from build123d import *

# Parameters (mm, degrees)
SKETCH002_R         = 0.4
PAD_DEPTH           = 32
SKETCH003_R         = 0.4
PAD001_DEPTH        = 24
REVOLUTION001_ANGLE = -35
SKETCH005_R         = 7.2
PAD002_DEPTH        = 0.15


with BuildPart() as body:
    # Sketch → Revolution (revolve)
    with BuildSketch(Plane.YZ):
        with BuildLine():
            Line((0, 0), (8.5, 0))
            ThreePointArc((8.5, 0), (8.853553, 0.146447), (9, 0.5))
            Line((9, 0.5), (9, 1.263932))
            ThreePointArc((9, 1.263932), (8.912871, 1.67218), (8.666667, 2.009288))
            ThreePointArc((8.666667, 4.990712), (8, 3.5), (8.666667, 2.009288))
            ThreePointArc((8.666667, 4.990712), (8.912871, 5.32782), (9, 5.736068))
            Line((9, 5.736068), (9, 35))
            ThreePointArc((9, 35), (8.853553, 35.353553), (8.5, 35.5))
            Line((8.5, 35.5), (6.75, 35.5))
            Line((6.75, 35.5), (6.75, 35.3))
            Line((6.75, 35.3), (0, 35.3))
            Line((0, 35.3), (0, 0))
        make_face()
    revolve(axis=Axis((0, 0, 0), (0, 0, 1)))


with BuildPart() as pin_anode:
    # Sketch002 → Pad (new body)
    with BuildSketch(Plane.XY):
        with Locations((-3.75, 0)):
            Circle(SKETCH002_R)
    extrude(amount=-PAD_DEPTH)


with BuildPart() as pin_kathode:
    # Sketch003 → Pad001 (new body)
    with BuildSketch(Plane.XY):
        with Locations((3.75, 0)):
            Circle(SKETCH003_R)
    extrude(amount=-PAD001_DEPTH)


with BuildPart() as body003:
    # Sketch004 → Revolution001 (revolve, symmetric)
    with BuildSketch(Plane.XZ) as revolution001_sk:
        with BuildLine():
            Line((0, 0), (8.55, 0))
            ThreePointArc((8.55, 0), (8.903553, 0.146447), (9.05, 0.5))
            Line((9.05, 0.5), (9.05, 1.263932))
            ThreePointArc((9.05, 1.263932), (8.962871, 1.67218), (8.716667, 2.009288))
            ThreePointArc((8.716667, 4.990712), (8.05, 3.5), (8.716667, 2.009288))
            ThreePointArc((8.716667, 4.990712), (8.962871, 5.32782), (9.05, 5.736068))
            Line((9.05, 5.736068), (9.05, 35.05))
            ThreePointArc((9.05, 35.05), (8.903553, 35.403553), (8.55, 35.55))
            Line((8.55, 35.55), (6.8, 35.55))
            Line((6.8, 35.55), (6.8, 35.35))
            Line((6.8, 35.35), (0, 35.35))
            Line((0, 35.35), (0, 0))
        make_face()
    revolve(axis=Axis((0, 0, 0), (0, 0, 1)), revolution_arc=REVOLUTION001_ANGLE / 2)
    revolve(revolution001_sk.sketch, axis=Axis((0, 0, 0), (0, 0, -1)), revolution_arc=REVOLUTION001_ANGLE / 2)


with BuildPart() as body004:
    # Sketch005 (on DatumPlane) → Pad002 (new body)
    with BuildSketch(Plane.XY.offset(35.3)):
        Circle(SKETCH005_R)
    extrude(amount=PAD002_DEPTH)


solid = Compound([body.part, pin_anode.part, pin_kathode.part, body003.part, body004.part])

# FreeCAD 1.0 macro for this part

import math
import FreeCAD as App
import Part
import Sketcher

doc = App.newDocument("Part")
body = doc.addObject("PartDesign::Body", "Body")

sketch1 = body.newObject("Sketcher::SketchObject", "Sketch")
sketch1.AttachmentSupport = (doc.getObject("YZ_Plane"), [""])
sketch1.MapMode = "FlatFace"
sketch1.addGeometry(Part.LineSegment(App.Vector(0, 0, 0), App.Vector(8.5, 0, 0)), False)
sketch1.addGeometry(Part.ArcOfCircle(Part.Circle(App.Vector(8.5, 0.5, 0), App.Vector(0, 0, 1), 0.5), math.radians(-90), math.radians(0)), False)
sketch1.addGeometry(Part.LineSegment(App.Vector(9, 0.5, 0), App.Vector(9, 1.26, 0)), False)
sketch1.addGeometry(Part.ArcOfCircle(Part.Circle(App.Vector(8, 1.26, 0), App.Vector(0, 0, 1), 1), math.radians(0), math.radians(48)), False)
sketch1.addGeometry(Part.ArcOfCircle(Part.Circle(App.Vector(10, 3.5, 0), App.Vector(0, 0, 1), 2), math.radians(132), math.radians(228)), False)
sketch1.addGeometry(Part.ArcOfCircle(Part.Circle(App.Vector(8, 5.74, 0), App.Vector(0, 0, 1), 1), math.radians(-48), math.radians(0)), False)
sketch1.addGeometry(Part.LineSegment(App.Vector(9, 5.74, 0), App.Vector(9, 35, 0)), False)
sketch1.addGeometry(Part.ArcOfCircle(Part.Circle(App.Vector(8.5, 35, 0), App.Vector(0, 0, 1), 0.5), math.radians(0), math.radians(90)), False)
sketch1.addGeometry(Part.LineSegment(App.Vector(8.5, 35.5, 0), App.Vector(6.75, 35.5, 0)), False)
sketch1.addGeometry(Part.LineSegment(App.Vector(6.75, 35.5, 0), App.Vector(6.75, 35.3, 0)), False)
sketch1.addGeometry(Part.LineSegment(App.Vector(6.75, 35.3, 0), App.Vector(0, 35.3, 0)), False)
sketch1.addGeometry(Part.LineSegment(App.Vector(0, 35.3, 0), App.Vector(0, 0, 0)), False)
sketch1.addConstraint(Sketcher.Constraint("Coincident", 0, 2, 1, 1))
sketch1.addConstraint(Sketcher.Constraint("Coincident", 1, 2, 2, 1))
sketch1.addConstraint(Sketcher.Constraint("Tangent", 2, 2, 3, 1))
sketch1.addConstraint(Sketcher.Constraint("Tangent", 3, 2, 4, 2))
sketch1.addConstraint(Sketcher.Constraint("Tangent", 4, 1, 5, 1))
sketch1.addConstraint(Sketcher.Constraint("Tangent", 5, 2, 6, 1))
sketch1.addConstraint(Sketcher.Constraint("Coincident", 6, 2, 7, 1))
sketch1.addConstraint(Sketcher.Constraint("Coincident", 7, 2, 8, 1))
sketch1.addConstraint(Sketcher.Constraint("Coincident", 8, 2, 9, 1))
sketch1.addConstraint(Sketcher.Constraint("Coincident", 9, 2, 10, 1))
sketch1.addConstraint(Sketcher.Constraint("Coincident", 10, 2, 11, 1))
sketch1.addConstraint(Sketcher.Constraint("Coincident", 11, 2, 0, 1))
sketch1.addConstraint(Sketcher.Constraint("Horizontal", 0))
sketch1.addConstraint(Sketcher.Constraint("Vertical", 2))
sketch1.addConstraint(Sketcher.Constraint("Vertical", 6))
sketch1.addConstraint(Sketcher.Constraint("Horizontal", 8))
sketch1.addConstraint(Sketcher.Constraint("Vertical", 9))
sketch1.addConstraint(Sketcher.Constraint("Horizontal", 10))
sketch1.addConstraint(Sketcher.Constraint("Vertical", 11))
sketch1.addConstraint(Sketcher.Constraint("Coincident", 11, 2, -1, 1))
sketch1.addConstraint(Sketcher.Constraint("Equal", 3, 5))
sketch1.addConstraint(Sketcher.Constraint("Equal", 1, 7))
sketch1.addConstraint(Sketcher.Constraint("Horizontal", 7, 3, 6, 2))
sketch1.addConstraint(Sketcher.Constraint("Vertical", 3, 3, 5, 3))
sketch1.addConstraint(Sketcher.Constraint("Vertical", 7, 3, 0, 2))
sketch1.addConstraint(Sketcher.Constraint("Vertical", 0, 2, 7, 2))
sketch1.addConstraint(Sketcher.Constraint("Radius", 3, 1.000002))
sketch1.addConstraint(Sketcher.Constraint("Radius", 4, 1.999999))
sketch1.addConstraint(Sketcher.Constraint("Radius", 1, 0.500001))
sketch1.addConstraint(Sketcher.Constraint("DistanceX", 0, 1, 0, 2, 8.5))
sketch1.addConstraint(Sketcher.Constraint("DistanceY", 9, 2, 9, 1, 0.2))
sketch1.addConstraint(Sketcher.Constraint("DistanceY", 11, 2, 11, 1, 35.3))
sketch1.addConstraint(Sketcher.Constraint("DistanceX", -1, 1, 4, 3, 9.999999))
sketch1.addConstraint(Sketcher.Constraint("DistanceY", 1, 3, 4, 3, 2.999999))
sketch1.addConstraint(Sketcher.Constraint("DistanceY", 1, 2, 4, 3, 3.0))
sketch1.addConstraint(Sketcher.Constraint("DistanceX", 8, 2, 8, 1, 1.75))
revolution = body.newObject("PartDesign::Revolution", "Revolution")
revolution.Profile = sketch1
revolution.ReferenceAxis = (sketch1, ["V_Axis"])
revolution.Angle = 360
body2 = doc.addObject("PartDesign::Body", "Body001")

sketch2 = body2.newObject("Sketcher::SketchObject", "Sketch001")
sketch2.AttachmentSupport = (doc.getObject("XY_Plane001"), [""])
sketch2.MapMode = "FlatFace"
sketch2.addGeometry(Part.Circle(App.Vector(-3.75, 0, 0), App.Vector(0, 0, 1), 0.4), False)
sketch2.addConstraint(Sketcher.Constraint("PointOnObject", 0, 3, -1))
sketch2.addConstraint(Sketcher.Constraint("Diameter", 0, 0.8))
sketch2.addConstraint(Sketcher.Constraint("DistanceX", 0, 3, -1, 1, 3.75))
pad1 = body2.newObject("PartDesign::Pad", "Pad")
pad1.Profile = sketch2
pad1.Length = 32
pad1.Reversed = True
body3 = doc.addObject("PartDesign::Body", "Body002")

sketch3 = body3.newObject("Sketcher::SketchObject", "Sketch002")
sketch3.AttachmentSupport = (doc.getObject("XY_Plane002"), [""])
sketch3.MapMode = "FlatFace"
sketch3.addGeometry(Part.Circle(App.Vector(3.75, 0, 0), App.Vector(0, 0, 1), 0.4), False)
sketch3.addConstraint(Sketcher.Constraint("PointOnObject", 0, 3, -1))
sketch3.addConstraint(Sketcher.Constraint("Diameter", 0, 0.8))
sketch3.addConstraint(Sketcher.Constraint("DistanceX", -1, 1, 0, 3, 3.75))
pad2 = body3.newObject("PartDesign::Pad", "Pad001")
pad2.Profile = sketch3
pad2.Length = 24
pad2.Reversed = True
body4 = doc.addObject("PartDesign::Body", "Body003")

sketch4 = body4.newObject("Sketcher::SketchObject", "Sketch003")
sketch4.AttachmentSupport = (doc.getObject("XZ_Plane003"), [""])
sketch4.MapMode = "FlatFace"
sketch4.addGeometry(Part.LineSegment(App.Vector(0, 0, 0), App.Vector(8.55, 0, 0)), False)
sketch4.addGeometry(Part.ArcOfCircle(Part.Circle(App.Vector(8.55, 0.5, 0), App.Vector(0, 0, 1), 0.5), math.radians(-90), math.radians(0)), False)
sketch4.addGeometry(Part.LineSegment(App.Vector(9.05, 0.5, 0), App.Vector(9.05, 1.26, 0)), False)
sketch4.addGeometry(Part.ArcOfCircle(Part.Circle(App.Vector(8.05, 1.26, 0), App.Vector(0, 0, 1), 1), math.radians(0), math.radians(48)), False)
sketch4.addGeometry(Part.ArcOfCircle(Part.Circle(App.Vector(10.05, 3.5, 0), App.Vector(0, 0, 1), 2), math.radians(132), math.radians(228)), False)
sketch4.addGeometry(Part.ArcOfCircle(Part.Circle(App.Vector(8.05, 5.74, 0), App.Vector(0, 0, 1), 1), math.radians(-48), math.radians(0)), False)
sketch4.addGeometry(Part.LineSegment(App.Vector(9.05, 5.74, 0), App.Vector(9.05, 35.05, 0)), False)
sketch4.addGeometry(Part.ArcOfCircle(Part.Circle(App.Vector(8.55, 35.05, 0), App.Vector(0, 0, 1), 0.5), math.radians(0), math.radians(90)), False)
sketch4.addGeometry(Part.LineSegment(App.Vector(8.55, 35.55, 0), App.Vector(6.8, 35.55, 0)), False)
sketch4.addGeometry(Part.LineSegment(App.Vector(6.8, 35.55, 0), App.Vector(6.8, 35.35, 0)), False)
sketch4.addGeometry(Part.LineSegment(App.Vector(6.8, 35.35, 0), App.Vector(0, 35.35, 0)), False)
sketch4.addGeometry(Part.LineSegment(App.Vector(0, 35.35, 0), App.Vector(0, 0, 0)), False)
sketch4.addConstraint(Sketcher.Constraint("Coincident", 0, 2, 1, 1))
sketch4.addConstraint(Sketcher.Constraint("Coincident", 1, 2, 2, 1))
sketch4.addConstraint(Sketcher.Constraint("Tangent", 2, 2, 3, 1))
sketch4.addConstraint(Sketcher.Constraint("Tangent", 3, 2, 4, 2))
sketch4.addConstraint(Sketcher.Constraint("Tangent", 4, 1, 5, 1))
sketch4.addConstraint(Sketcher.Constraint("Tangent", 5, 2, 6, 1))
sketch4.addConstraint(Sketcher.Constraint("Coincident", 6, 2, 7, 1))
sketch4.addConstraint(Sketcher.Constraint("Coincident", 7, 2, 8, 1))
sketch4.addConstraint(Sketcher.Constraint("Coincident", 8, 2, 9, 1))
sketch4.addConstraint(Sketcher.Constraint("Coincident", 9, 2, 10, 1))
sketch4.addConstraint(Sketcher.Constraint("Coincident", 10, 2, 11, 1))
sketch4.addConstraint(Sketcher.Constraint("Coincident", 11, 2, 0, 1))
sketch4.addConstraint(Sketcher.Constraint("Horizontal", 0))
sketch4.addConstraint(Sketcher.Constraint("Vertical", 2))
sketch4.addConstraint(Sketcher.Constraint("Vertical", 6))
sketch4.addConstraint(Sketcher.Constraint("Horizontal", 8))
sketch4.addConstraint(Sketcher.Constraint("Vertical", 9))
sketch4.addConstraint(Sketcher.Constraint("Horizontal", 10))
sketch4.addConstraint(Sketcher.Constraint("Vertical", 11))
sketch4.addConstraint(Sketcher.Constraint("Coincident", 11, 2, -1, 1))
sketch4.addConstraint(Sketcher.Constraint("Equal", 3, 5))
sketch4.addConstraint(Sketcher.Constraint("Equal", 1, 7))
sketch4.addConstraint(Sketcher.Constraint("Horizontal", 7, 3, 6, 2))
sketch4.addConstraint(Sketcher.Constraint("Vertical", 3, 3, 5, 3))
sketch4.addConstraint(Sketcher.Constraint("Vertical", 7, 3, 0, 2))
sketch4.addConstraint(Sketcher.Constraint("Vertical", 0, 2, 7, 2))
sketch4.addConstraint(Sketcher.Constraint("Radius", 3, 1.000002))
sketch4.addConstraint(Sketcher.Constraint("Radius", 4, 1.999999))
sketch4.addConstraint(Sketcher.Constraint("Radius", 1, 0.500001))
sketch4.addConstraint(Sketcher.Constraint("DistanceX", 10, 2, 10, 1, 6.8))
sketch4.addConstraint(Sketcher.Constraint("DistanceY", 9, 2, 9, 1, 0.2))
sketch4.addConstraint(Sketcher.Constraint("DistanceX", 3, 3, 4, 3, 2.000001))
sketch4.addConstraint(Sketcher.Constraint("DistanceY", 1, 3, 4, 3, 2.999999))
sketch4.addConstraint(Sketcher.Constraint("DistanceY", 1, 2, 4, 3, 3.0))
sketch4.addConstraint(Sketcher.Constraint("DistanceX", 0, 1, 0, 2, 8.55))
sketch4.addConstraint(Sketcher.Constraint("DistanceY", 11, 2, 11, 1, 35.35))
revolution2 = body4.newObject("PartDesign::Revolution", "Revolution001")
revolution2.Profile = sketch4
revolution2.ReferenceAxis = (sketch4, ["V_Axis"])
revolution2.Angle = 17.5
revolution2.Reversed = True

sketch5 = body4.newObject("Sketcher::SketchObject", "Sketch004")
sketch5.AttachmentSupport = (doc.getObject("XZ_Plane003"), [""])
sketch5.MapMode = "FlatFace"
sketch5.addGeometry(Part.LineSegment(App.Vector(0, 0, 0), App.Vector(8.55, 0, 0)), False)
sketch5.addGeometry(Part.ArcOfCircle(Part.Circle(App.Vector(8.55, 0.5, 0), App.Vector(0, 0, 1), 0.5), math.radians(-90), math.radians(0)), False)
sketch5.addGeometry(Part.LineSegment(App.Vector(9.05, 0.5, 0), App.Vector(9.05, 1.26, 0)), False)
sketch5.addGeometry(Part.ArcOfCircle(Part.Circle(App.Vector(8.05, 1.26, 0), App.Vector(0, 0, 1), 1), math.radians(0), math.radians(48)), False)
sketch5.addGeometry(Part.ArcOfCircle(Part.Circle(App.Vector(10.05, 3.5, 0), App.Vector(0, 0, 1), 2), math.radians(132), math.radians(228)), False)
sketch5.addGeometry(Part.ArcOfCircle(Part.Circle(App.Vector(8.05, 5.74, 0), App.Vector(0, 0, 1), 1), math.radians(-48), math.radians(0)), False)
sketch5.addGeometry(Part.LineSegment(App.Vector(9.05, 5.74, 0), App.Vector(9.05, 35.05, 0)), False)
sketch5.addGeometry(Part.ArcOfCircle(Part.Circle(App.Vector(8.55, 35.05, 0), App.Vector(0, 0, 1), 0.5), math.radians(0), math.radians(90)), False)
sketch5.addGeometry(Part.LineSegment(App.Vector(8.55, 35.55, 0), App.Vector(6.8, 35.55, 0)), False)
sketch5.addGeometry(Part.LineSegment(App.Vector(6.8, 35.55, 0), App.Vector(6.8, 35.35, 0)), False)
sketch5.addGeometry(Part.LineSegment(App.Vector(6.8, 35.35, 0), App.Vector(0, 35.35, 0)), False)
sketch5.addGeometry(Part.LineSegment(App.Vector(0, 35.35, 0), App.Vector(0, 0, 0)), False)
sketch5.addConstraint(Sketcher.Constraint("Coincident", 0, 2, 1, 1))
sketch5.addConstraint(Sketcher.Constraint("Coincident", 1, 2, 2, 1))
sketch5.addConstraint(Sketcher.Constraint("Tangent", 2, 2, 3, 1))
sketch5.addConstraint(Sketcher.Constraint("Tangent", 3, 2, 4, 2))
sketch5.addConstraint(Sketcher.Constraint("Tangent", 4, 1, 5, 1))
sketch5.addConstraint(Sketcher.Constraint("Tangent", 5, 2, 6, 1))
sketch5.addConstraint(Sketcher.Constraint("Coincident", 6, 2, 7, 1))
sketch5.addConstraint(Sketcher.Constraint("Coincident", 7, 2, 8, 1))
sketch5.addConstraint(Sketcher.Constraint("Coincident", 8, 2, 9, 1))
sketch5.addConstraint(Sketcher.Constraint("Coincident", 9, 2, 10, 1))
sketch5.addConstraint(Sketcher.Constraint("Coincident", 10, 2, 11, 1))
sketch5.addConstraint(Sketcher.Constraint("Coincident", 11, 2, 0, 1))
sketch5.addConstraint(Sketcher.Constraint("Horizontal", 0))
sketch5.addConstraint(Sketcher.Constraint("Vertical", 2))
sketch5.addConstraint(Sketcher.Constraint("Vertical", 6))
sketch5.addConstraint(Sketcher.Constraint("Horizontal", 8))
sketch5.addConstraint(Sketcher.Constraint("Vertical", 9))
sketch5.addConstraint(Sketcher.Constraint("Horizontal", 10))
sketch5.addConstraint(Sketcher.Constraint("Vertical", 11))
sketch5.addConstraint(Sketcher.Constraint("Coincident", 11, 2, -1, 1))
sketch5.addConstraint(Sketcher.Constraint("Equal", 3, 5))
sketch5.addConstraint(Sketcher.Constraint("Equal", 1, 7))
sketch5.addConstraint(Sketcher.Constraint("Horizontal", 7, 3, 6, 2))
sketch5.addConstraint(Sketcher.Constraint("Vertical", 3, 3, 5, 3))
sketch5.addConstraint(Sketcher.Constraint("Vertical", 7, 3, 0, 2))
sketch5.addConstraint(Sketcher.Constraint("Vertical", 0, 2, 7, 2))
sketch5.addConstraint(Sketcher.Constraint("Radius", 3, 1.000002))
sketch5.addConstraint(Sketcher.Constraint("Radius", 4, 1.999999))
sketch5.addConstraint(Sketcher.Constraint("Radius", 1, 0.500001))
sketch5.addConstraint(Sketcher.Constraint("DistanceX", 10, 2, 10, 1, 6.8))
sketch5.addConstraint(Sketcher.Constraint("DistanceY", 9, 2, 9, 1, 0.2))
sketch5.addConstraint(Sketcher.Constraint("DistanceX", 3, 3, 4, 3, 2.000001))
sketch5.addConstraint(Sketcher.Constraint("DistanceY", 1, 3, 4, 3, 2.999999))
sketch5.addConstraint(Sketcher.Constraint("DistanceY", 1, 2, 4, 3, 3.0))
sketch5.addConstraint(Sketcher.Constraint("DistanceX", 0, 1, 0, 2, 8.55))
sketch5.addConstraint(Sketcher.Constraint("DistanceY", 11, 2, 11, 1, 35.35))
revolution3 = body4.newObject("PartDesign::Revolution", "Revolution002")
revolution3.Profile = sketch5
revolution3.ReferenceAxis = (sketch5, ["V_Axis"])
revolution3.Angle = 17.5
body5 = doc.addObject("PartDesign::Body", "Body004")

sketch6 = body5.newObject("Sketcher::SketchObject", "Sketch005")
sketch6.AttachmentSupport = (doc.getObject("XY_Plane004"), [""])
sketch6.MapMode = "FlatFace"
sketch6.AttachmentOffset = App.Placement(App.Vector(0, 0, 35.3), App.Rotation())
sketch6.addGeometry(Part.Circle(App.Vector(0, 0, 0), App.Vector(0, 0, 1), 7), False)
sketch6.addConstraint(Sketcher.Constraint("Coincident", 0, 3, -1, 1))
sketch6.addConstraint(Sketcher.Constraint("Diameter", 0, 14.4))
pad3 = body5.newObject("PartDesign::Pad", "Pad002")
pad3.Profile = sketch6
pad3.Length = 0.15

doc.recompute()
